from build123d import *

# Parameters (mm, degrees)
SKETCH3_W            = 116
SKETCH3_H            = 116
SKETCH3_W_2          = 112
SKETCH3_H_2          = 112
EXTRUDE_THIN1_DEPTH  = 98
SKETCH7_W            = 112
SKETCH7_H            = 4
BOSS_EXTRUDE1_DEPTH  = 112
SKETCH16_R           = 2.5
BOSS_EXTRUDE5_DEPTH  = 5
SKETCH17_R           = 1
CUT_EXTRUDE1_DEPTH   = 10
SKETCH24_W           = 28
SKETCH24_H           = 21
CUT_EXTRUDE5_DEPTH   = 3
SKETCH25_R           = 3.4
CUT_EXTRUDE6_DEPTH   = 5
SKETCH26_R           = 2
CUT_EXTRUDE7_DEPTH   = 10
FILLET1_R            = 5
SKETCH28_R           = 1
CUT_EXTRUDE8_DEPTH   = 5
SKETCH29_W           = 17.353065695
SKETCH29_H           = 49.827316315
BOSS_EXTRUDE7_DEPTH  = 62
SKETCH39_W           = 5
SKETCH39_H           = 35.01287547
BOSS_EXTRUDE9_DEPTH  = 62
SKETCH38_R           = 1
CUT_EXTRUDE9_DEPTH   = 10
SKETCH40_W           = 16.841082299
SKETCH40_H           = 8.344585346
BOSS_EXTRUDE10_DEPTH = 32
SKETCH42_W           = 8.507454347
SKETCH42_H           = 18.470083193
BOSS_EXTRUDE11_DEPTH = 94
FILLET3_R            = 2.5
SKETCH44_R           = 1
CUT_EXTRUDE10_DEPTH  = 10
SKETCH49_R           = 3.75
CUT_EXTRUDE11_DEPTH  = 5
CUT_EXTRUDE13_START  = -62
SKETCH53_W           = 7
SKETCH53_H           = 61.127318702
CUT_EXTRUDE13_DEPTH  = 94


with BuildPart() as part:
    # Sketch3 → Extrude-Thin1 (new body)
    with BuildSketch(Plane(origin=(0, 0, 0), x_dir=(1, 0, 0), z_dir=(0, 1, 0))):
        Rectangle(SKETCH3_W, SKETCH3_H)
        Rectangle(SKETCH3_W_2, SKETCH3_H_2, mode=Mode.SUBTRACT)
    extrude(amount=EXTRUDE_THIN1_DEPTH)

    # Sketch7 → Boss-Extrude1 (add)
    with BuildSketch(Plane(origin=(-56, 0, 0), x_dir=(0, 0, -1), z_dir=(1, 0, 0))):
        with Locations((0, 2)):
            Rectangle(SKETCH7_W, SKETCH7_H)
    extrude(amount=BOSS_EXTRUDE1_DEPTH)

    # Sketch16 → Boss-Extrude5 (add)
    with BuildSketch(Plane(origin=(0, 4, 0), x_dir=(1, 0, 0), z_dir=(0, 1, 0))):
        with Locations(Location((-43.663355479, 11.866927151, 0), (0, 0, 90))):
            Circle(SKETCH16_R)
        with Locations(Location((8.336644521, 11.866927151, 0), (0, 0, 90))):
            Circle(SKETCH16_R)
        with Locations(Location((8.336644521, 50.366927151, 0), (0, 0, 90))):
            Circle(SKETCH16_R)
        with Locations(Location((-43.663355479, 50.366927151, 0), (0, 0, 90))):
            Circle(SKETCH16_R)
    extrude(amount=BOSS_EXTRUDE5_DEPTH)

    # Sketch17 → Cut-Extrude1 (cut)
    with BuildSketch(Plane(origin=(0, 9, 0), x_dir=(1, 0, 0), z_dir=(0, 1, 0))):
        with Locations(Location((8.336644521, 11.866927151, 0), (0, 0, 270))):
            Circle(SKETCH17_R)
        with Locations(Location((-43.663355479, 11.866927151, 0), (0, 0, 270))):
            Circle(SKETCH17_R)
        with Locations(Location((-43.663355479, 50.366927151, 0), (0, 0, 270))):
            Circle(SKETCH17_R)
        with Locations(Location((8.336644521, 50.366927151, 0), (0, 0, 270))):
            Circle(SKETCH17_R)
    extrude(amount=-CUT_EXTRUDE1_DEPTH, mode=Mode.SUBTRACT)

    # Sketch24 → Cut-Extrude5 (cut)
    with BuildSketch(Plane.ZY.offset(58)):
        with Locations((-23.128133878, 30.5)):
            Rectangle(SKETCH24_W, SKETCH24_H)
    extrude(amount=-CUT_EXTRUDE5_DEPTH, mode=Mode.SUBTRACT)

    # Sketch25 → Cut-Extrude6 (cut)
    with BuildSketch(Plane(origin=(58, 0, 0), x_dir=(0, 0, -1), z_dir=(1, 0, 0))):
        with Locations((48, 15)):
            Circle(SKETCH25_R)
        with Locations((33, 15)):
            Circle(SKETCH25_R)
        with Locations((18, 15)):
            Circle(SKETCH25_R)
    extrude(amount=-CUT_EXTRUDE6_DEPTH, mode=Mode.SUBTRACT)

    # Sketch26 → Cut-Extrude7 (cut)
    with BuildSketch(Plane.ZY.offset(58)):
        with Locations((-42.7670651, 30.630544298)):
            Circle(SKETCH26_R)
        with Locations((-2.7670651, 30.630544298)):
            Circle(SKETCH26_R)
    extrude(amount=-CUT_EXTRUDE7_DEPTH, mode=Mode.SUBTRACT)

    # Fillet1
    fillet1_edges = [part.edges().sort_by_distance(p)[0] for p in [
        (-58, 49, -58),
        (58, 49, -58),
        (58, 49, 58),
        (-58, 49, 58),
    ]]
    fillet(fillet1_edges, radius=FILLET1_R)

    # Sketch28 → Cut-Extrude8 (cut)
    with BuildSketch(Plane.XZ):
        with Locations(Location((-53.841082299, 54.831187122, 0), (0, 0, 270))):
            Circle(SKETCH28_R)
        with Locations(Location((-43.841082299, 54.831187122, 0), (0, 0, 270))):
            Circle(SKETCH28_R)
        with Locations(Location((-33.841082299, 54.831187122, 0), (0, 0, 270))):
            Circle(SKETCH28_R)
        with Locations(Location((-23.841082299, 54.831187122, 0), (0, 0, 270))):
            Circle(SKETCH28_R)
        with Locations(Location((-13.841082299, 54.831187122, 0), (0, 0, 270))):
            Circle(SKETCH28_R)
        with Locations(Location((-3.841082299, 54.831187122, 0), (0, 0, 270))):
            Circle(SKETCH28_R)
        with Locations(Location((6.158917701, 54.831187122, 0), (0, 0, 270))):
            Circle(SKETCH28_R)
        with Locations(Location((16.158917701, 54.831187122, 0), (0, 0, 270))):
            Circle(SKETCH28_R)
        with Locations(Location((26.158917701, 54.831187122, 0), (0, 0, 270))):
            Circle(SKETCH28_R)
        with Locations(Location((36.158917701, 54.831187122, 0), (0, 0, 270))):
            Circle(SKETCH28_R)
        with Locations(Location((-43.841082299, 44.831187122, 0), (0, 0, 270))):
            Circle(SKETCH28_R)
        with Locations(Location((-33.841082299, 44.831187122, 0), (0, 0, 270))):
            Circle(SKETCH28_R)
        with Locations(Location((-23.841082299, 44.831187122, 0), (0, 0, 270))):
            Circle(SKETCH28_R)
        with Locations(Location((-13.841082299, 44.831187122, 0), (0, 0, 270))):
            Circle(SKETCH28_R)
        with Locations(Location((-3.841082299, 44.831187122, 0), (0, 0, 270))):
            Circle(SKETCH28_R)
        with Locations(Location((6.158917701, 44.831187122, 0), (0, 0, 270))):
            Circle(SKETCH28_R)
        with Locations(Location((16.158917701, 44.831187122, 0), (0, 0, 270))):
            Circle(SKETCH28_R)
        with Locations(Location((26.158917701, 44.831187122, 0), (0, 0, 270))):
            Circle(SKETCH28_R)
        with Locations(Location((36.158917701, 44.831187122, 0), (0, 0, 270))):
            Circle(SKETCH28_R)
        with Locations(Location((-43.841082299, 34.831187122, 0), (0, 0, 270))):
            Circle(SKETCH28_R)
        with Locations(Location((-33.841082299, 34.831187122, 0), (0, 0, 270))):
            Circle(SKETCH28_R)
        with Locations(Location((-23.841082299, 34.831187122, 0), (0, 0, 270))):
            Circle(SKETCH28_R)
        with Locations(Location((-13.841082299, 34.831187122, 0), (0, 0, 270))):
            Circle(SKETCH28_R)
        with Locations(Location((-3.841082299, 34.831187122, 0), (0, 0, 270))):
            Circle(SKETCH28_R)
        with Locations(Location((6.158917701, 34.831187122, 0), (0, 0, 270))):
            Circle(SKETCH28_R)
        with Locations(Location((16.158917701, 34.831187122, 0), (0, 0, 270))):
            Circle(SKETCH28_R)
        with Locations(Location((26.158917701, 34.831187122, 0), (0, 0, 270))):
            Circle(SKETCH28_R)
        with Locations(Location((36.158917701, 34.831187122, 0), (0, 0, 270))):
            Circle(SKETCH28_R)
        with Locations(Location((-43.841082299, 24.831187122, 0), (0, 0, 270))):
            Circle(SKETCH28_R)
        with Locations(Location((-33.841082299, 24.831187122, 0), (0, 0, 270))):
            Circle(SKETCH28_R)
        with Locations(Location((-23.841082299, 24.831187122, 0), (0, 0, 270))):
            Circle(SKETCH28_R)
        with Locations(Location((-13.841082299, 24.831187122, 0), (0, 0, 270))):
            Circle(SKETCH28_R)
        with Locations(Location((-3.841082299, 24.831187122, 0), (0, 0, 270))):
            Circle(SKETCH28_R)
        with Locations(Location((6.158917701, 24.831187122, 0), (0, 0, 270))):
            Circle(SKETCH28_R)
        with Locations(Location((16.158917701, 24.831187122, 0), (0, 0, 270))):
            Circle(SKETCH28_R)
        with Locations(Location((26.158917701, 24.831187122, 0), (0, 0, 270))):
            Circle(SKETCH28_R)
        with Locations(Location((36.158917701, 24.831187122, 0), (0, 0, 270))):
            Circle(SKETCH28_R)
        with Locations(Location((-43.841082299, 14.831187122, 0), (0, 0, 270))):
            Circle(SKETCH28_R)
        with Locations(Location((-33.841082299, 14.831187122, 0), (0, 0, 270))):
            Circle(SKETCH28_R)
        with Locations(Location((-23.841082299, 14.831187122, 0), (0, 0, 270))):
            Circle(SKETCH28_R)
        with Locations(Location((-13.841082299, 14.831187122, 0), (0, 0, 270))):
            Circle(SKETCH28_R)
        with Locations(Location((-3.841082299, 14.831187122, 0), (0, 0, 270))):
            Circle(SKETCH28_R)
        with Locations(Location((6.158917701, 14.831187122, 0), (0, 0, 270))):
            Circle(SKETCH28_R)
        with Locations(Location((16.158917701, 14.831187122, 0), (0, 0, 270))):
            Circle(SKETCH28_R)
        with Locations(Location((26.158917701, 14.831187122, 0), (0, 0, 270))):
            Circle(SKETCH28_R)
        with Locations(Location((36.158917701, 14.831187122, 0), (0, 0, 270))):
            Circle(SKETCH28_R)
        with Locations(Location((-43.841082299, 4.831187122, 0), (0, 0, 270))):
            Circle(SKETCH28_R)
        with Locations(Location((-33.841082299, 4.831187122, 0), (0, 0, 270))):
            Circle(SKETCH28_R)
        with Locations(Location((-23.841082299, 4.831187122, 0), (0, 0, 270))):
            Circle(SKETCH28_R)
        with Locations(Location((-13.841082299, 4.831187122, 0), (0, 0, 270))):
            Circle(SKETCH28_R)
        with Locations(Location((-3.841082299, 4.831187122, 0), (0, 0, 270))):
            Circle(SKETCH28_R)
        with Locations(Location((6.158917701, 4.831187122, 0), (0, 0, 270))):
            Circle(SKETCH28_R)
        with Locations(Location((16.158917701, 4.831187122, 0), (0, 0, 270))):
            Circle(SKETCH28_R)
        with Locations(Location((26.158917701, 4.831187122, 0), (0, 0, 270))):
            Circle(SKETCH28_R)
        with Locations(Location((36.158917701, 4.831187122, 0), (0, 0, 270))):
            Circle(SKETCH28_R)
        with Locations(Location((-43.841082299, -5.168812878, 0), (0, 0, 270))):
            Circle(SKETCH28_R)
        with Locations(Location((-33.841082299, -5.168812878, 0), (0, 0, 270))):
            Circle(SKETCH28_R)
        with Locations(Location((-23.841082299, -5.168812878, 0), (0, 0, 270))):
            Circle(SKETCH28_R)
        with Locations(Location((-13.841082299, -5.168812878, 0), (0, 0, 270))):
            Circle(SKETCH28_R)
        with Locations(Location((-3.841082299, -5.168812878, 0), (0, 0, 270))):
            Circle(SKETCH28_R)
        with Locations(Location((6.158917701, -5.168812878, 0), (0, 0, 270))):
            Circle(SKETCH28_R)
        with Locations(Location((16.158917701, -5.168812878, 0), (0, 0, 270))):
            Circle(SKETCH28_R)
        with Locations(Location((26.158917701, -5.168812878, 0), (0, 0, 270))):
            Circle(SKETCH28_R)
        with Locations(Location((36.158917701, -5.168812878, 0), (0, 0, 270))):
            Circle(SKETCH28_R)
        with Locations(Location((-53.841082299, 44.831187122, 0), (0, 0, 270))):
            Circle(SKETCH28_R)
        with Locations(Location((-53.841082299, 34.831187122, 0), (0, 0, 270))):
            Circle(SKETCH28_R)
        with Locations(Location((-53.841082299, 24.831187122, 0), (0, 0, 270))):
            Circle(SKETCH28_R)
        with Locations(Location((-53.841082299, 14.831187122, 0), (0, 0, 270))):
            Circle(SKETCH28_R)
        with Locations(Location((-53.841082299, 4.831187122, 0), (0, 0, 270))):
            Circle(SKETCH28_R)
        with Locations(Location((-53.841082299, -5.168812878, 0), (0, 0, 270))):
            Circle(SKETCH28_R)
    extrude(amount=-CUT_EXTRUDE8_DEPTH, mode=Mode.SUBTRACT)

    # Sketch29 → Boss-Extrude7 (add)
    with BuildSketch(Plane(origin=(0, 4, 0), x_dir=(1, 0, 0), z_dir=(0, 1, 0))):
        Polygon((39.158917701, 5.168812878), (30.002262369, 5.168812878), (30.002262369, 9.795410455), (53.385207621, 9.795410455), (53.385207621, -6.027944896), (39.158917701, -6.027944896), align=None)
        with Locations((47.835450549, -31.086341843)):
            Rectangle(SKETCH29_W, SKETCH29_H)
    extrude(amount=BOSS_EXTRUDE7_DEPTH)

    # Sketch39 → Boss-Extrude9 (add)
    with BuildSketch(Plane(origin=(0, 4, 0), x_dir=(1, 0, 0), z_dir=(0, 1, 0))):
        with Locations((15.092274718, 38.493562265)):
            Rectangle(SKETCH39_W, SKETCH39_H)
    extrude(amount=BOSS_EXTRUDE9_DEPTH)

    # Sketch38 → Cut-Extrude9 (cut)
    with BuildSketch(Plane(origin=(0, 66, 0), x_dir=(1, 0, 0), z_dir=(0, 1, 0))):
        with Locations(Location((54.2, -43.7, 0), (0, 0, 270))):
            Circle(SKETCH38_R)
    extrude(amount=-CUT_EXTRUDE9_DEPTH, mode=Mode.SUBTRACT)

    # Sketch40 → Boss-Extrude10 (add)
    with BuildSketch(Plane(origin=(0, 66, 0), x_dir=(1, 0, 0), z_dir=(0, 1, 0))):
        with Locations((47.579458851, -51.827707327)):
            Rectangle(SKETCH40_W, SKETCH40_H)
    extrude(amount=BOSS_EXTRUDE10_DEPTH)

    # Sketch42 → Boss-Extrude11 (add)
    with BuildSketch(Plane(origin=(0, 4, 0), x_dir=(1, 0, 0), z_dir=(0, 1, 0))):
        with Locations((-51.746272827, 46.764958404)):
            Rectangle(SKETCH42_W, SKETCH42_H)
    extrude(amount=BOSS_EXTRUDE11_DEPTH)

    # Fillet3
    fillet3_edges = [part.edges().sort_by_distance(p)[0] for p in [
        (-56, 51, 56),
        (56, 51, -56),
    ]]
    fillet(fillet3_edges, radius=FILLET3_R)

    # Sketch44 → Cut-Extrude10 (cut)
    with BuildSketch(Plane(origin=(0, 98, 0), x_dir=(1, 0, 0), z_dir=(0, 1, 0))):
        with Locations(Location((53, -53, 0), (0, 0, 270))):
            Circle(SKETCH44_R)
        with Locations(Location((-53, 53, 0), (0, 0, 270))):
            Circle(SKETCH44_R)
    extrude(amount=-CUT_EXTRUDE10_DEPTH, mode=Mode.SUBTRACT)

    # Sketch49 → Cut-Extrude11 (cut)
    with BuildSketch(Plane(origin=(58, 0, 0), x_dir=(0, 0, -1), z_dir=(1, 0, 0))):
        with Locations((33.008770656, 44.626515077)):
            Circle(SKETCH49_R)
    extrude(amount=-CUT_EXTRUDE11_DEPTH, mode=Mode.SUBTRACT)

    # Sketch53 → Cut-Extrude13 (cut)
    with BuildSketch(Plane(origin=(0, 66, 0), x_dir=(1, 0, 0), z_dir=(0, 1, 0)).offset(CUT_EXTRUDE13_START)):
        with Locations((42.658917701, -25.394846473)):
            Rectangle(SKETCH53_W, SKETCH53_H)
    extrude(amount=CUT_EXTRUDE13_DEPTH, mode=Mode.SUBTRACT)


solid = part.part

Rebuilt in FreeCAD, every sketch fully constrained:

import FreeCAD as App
import Part
import Sketcher
from FreeCAD import Vector


def edges_at(feature, points):
    """Names of the edges that pass closest to the given points."""
    edges = feature.Shape.Edges
    near = lambda p: min(range(len(edges)), key=lambda i: edges[i].distToShape(Part.Vertex(*p))[0])
    return sorted({f"Edge{near(p) + 1}" for p in points})


def add_polygon(sketch, points):
    """Adds a closed chain of lines whose ends are joined by coincident constraints."""
    first, n = sketch.GeometryCount, len(points)
    for a, b in zip(points, points[1:] + points[:1]):
        sketch.addGeometry(Part.LineSegment(App.Vector(*a, 0), App.Vector(*b, 0)), False)
    for i in range(n):
        sketch.addConstraint(Sketcher.Constraint("Coincident", first + i, 2, first + (i + 1) % n, 1))

doc = App.newDocument("Part")
body = doc.addObject("PartDesign::Body", "Body")

sketch1 = body.newObject("Sketcher::SketchObject", "Sketch")
sketch1.AttachmentSupport = (doc.getObject("XZ_Plane"), [""])
sketch1.MapMode = "FlatFace"
add_polygon(sketch1, [(-58, -58), (-58, 58), (58, 58), (58, -58)])
add_polygon(sketch1, [(56, 56), (-56, 56), (-56, -56), (56, -56)])
sketch1.addConstraint(Sketcher.Constraint("Vertical", 0))
sketch1.addConstraint(Sketcher.Constraint("Horizontal", 1))
sketch1.addConstraint(Sketcher.Constraint("Vertical", 2))
sketch1.addConstraint(Sketcher.Constraint("Horizontal", 3))
sketch1.addConstraint(Sketcher.Constraint("Horizontal", 4))
sketch1.addConstraint(Sketcher.Constraint("Vertical", 5))
sketch1.addConstraint(Sketcher.Constraint("Horizontal", 6))
sketch1.addConstraint(Sketcher.Constraint("Vertical", 7))
sketch1.addConstraint(Sketcher.Constraint("Symmetric", 0, 2, 2, 2, -1, 1))
sketch1.addConstraint(Sketcher.Constraint("Symmetric", 4, 2, 6, 2, -1, 1))
sketch1.addConstraint(Sketcher.Constraint("Equal", 3, 0))
sketch1.addConstraint(Sketcher.Constraint("Equal", 6, 5))
sketch1.addConstraint(Sketcher.Constraint("DistanceX", 1, 1, 1, 2, 116.0))
sketch1.addConstraint(Sketcher.Constraint("DistanceX", 4, 2, 4, 1, 112.0))
pad1 = body.newObject("PartDesign::Pad", "Pad")
pad1.Profile = sketch1
pad1.Length = 98
pad1.Reversed = True

sketch2 = body.newObject("Sketcher::SketchObject", "Sketch001")
sketch2.AttachmentSupport = (doc.getObject("YZ_Plane"), [""])
sketch2.MapMode = "FlatFace"
sketch2.AttachmentOffset = App.Placement(Vector(0, 0, -56), App.Rotation())
add_polygon(sketch2, [(4, 56), (0, 56), (0, -56), (4, -56)])
sketch2.addConstraint(Sketcher.Constraint("Horizontal", 0))
sketch2.addConstraint(Sketcher.Constraint("Vertical", 1))
sketch2.addConstraint(Sketcher.Constraint("Horizontal", 2))
sketch2.addConstraint(Sketcher.Constraint("Vertical", 3))
sketch2.addConstraint(Sketcher.Constraint("Symmetric", 0, 2, 1, 2, -1, 1))
sketch2.addConstraint(Sketcher.Constraint("DistanceX", 0, 2, 0, 1, 4.0))
sketch2.addConstraint(Sketcher.Constraint("DistanceY", 1, 2, 1, 1, 112.0))
pad2 = body.newObject("PartDesign::Pad", "Pad001")
pad2.Profile = sketch2
pad2.Length = 112

sketch3 = body.newObject("Sketcher::SketchObject", "Sketch002")
sketch3.AttachmentSupport = (doc.getObject("XZ_Plane"), [""])
sketch3.MapMode = "FlatFace"
sketch3.AttachmentOffset = App.Placement(Vector(0, 0, -4), App.Rotation())
sketch3.addGeometry(Part.Circle(Vector(-43.7, -11.9, 0), Vector(0, 0, 1), 2.5), False)
sketch3.addGeometry(Part.Circle(Vector(8.3, -11.9, 0), Vector(0, 0, 1), 2.5), False)
sketch3.addGeometry(Part.Circle(Vector(8.3, -50.4, 0), Vector(0, 0, 1), 2.5), False)
sketch3.addGeometry(Part.Circle(Vector(-43.7, -50.4, 0), Vector(0, 0, 1), 2.5), False)
sketch3.addConstraint(Sketcher.Constraint("Equal", 0, 1))
sketch3.addConstraint(Sketcher.Constraint("Equal", 1, 2))
sketch3.addConstraint(Sketcher.Constraint("Equal", 2, 3))
sketch3.addConstraint(Sketcher.Constraint("Horizontal", 0, 3, 1, 3))
sketch3.addConstraint(Sketcher.Constraint("Horizontal", 2, 3, 3, 3))
sketch3.addConstraint(Sketcher.Constraint("Vertical", 1, 3, 2, 3))
sketch3.addConstraint(Sketcher.Constraint("Vertical", 0, 3, 3, 3))
sketch3.addConstraint(Sketcher.Constraint("Diameter", 0, 5.0))
sketch3.addConstraint(Sketcher.Constraint("DistanceX", 0, 3, 1, 3, 52.0))
sketch3.addConstraint(Sketcher.Constraint("DistanceY", 2, 3, 1, 3, 38.5))
sketch3.addConstraint(Sketcher.Constraint("DistanceX", 0, 3, -1, 1, 43.663355))
sketch3.addConstraint(Sketcher.Constraint("DistanceY", 0, 3, -1, 1, 11.866927))
pad3 = body.newObject("PartDesign::Pad", "Pad002")
pad3.Profile = sketch3
pad3.Length = 5
pad3.Reversed = True

sketch4 = body.newObject("Sketcher::SketchObject", "Sketch003")
sketch4.AttachmentSupport = (doc.getObject("XZ_Plane"), [""])
sketch4.MapMode = "FlatFace"
sketch4.AttachmentOffset = App.Placement(Vector(0, 0, -9), App.Rotation())
sketch4.addGeometry(Part.Circle(Vector(8.3, -11.9, 0), Vector(0, 0, 1), 1), False)
sketch4.addGeometry(Part.Circle(Vector(-43.7, -11.9, 0), Vector(0, 0, 1), 1), False)
sketch4.addGeometry(Part.Circle(Vector(-43.7, -50.4, 0), Vector(0, 0, 1), 1), False)
sketch4.addGeometry(Part.Circle(Vector(8.3, -50.4, 0), Vector(0, 0, 1), 1), False)
sketch4.addConstraint(Sketcher.Constraint("Equal", 0, 1))
sketch4.addConstraint(Sketcher.Constraint("Equal", 1, 2))
sketch4.addConstraint(Sketcher.Constraint("Equal", 2, 3))
sketch4.addConstraint(Sketcher.Constraint("Horizontal", 0, 3, 1, 3))
sketch4.addConstraint(Sketcher.Constraint("Horizontal", 2, 3, 3, 3))
sketch4.addConstraint(Sketcher.Constraint("Vertical", 1, 3, 2, 3))
sketch4.addConstraint(Sketcher.Constraint("Vertical", 0, 3, 3, 3))
sketch4.addConstraint(Sketcher.Constraint("Diameter", 0, 2.0))
sketch4.addConstraint(Sketcher.Constraint("DistanceX", 1, 3, 0, 3, 52.0))
sketch4.addConstraint(Sketcher.Constraint("DistanceY", 2, 3, 1, 3, 38.5))
sketch4.addConstraint(Sketcher.Constraint("DistanceX", -1, 1, 0, 3, 8.336645))
sketch4.addConstraint(Sketcher.Constraint("DistanceY", 0, 3, -1, 1, 11.866927))
pocket1 = body.newObject("PartDesign::Pocket", "Pocket")
pocket1.Profile = sketch4
pocket1.Length = 10
pocket1.Reversed = True

sketch5 = body.newObject("Sketcher::SketchObject", "Sketch004")
sketch5.AttachmentSupport = (doc.getObject("YZ_Plane"), [""])
sketch5.MapMode = "FlatFace"
sketch5.AttachmentOffset = App.Placement(Vector(0, 0, -58), App.Rotation())
add_polygon(sketch5, [(41, -37), (20, -37), (20, -9), (41, -9)])
sketch5.addConstraint(Sketcher.Constraint("Horizontal", 0))
sketch5.addConstraint(Sketcher.Constraint("Vertical", 1))
sketch5.addConstraint(Sketcher.Constraint("Horizontal", 2))
sketch5.addConstraint(Sketcher.Constraint("Vertical", 3))
sketch5.addConstraint(Sketcher.Constraint("DistanceX", 0, 2, 0, 1, 21.0))
sketch5.addConstraint(Sketcher.Constraint("DistanceY", 1, 1, 1, 2, 28.0))
sketch5.addConstraint(Sketcher.Constraint("DistanceX", -1, 1, 0, 2, 20.0))
sketch5.addConstraint(Sketcher.Constraint("DistanceY", 0, 2, -1, 1, 37.128134))
pocket2 = body.newObject("PartDesign::Pocket", "Pocket001")
pocket2.Profile = sketch5
pocket2.Length = 3
pocket2.Reversed = True

sketch6 = body.newObject("Sketcher::SketchObject", "Sketch005")
sketch6.AttachmentSupport = (doc.getObject("YZ_Plane"), [""])
sketch6.MapMode = "FlatFace"
sketch6.AttachmentOffset = App.Placement(Vector(0, 0, 58), App.Rotation())
sketch6.addGeometry(Part.Circle(Vector(15, -48, 0), Vector(0, 0, 1), 3.4), False)
sketch6.addGeometry(Part.Circle(Vector(15, -33, 0), Vector(0, 0, 1), 3.4), False)
sketch6.addGeometry(Part.Circle(Vector(15, -18, 0), Vector(0, 0, 1), 3.4), False)
sketch6.addConstraint(Sketcher.Constraint("Equal", 0, 1))
sketch6.addConstraint(Sketcher.Constraint("Equal", 1, 2))
sketch6.addConstraint(Sketcher.Constraint("Vertical", 0, 3, 1, 3))
sketch6.addConstraint(Sketcher.Constraint("Vertical", 1, 3, 2, 3))
sketch6.addConstraint(Sketcher.Constraint("Diameter", 0, 6.8))
sketch6.addConstraint(Sketcher.Constraint("DistanceX", -1, 1, 0, 3, 15.0))
sketch6.addConstraint(Sketcher.Constraint("DistanceY", 0, 3, -1, 1, 48.0))
sketch6.addConstraint(Sketcher.Constraint("DistanceY", 1, 3, -1, 1, 33.0))
sketch6.addConstraint(Sketcher.Constraint("DistanceY", 2, 3, -1, 1, 18.0))
pocket3 = body.newObject("PartDesign::Pocket", "Pocket002")
pocket3.Profile = sketch6
pocket3.Length = 5

sketch7 = body.newObject("Sketcher::SketchObject", "Sketch006")
sketch7.AttachmentSupport = (doc.getObject("YZ_Plane"), [""])
sketch7.MapMode = "FlatFace"
sketch7.AttachmentOffset = App.Placement(Vector(0, 0, -58), App.Rotation())
sketch7.addGeometry(Part.Circle(Vector(30.6, -42.8, 0), Vector(0, 0, 1), 2), False)
sketch7.addGeometry(Part.Circle(Vector(30.6, -2.8, 0), Vector(0, 0, 1), 2), False)
sketch7.addConstraint(Sketcher.Constraint("Equal", 0, 1))
sketch7.addConstraint(Sketcher.Constraint("Vertical", 0, 3, 1, 3))
sketch7.addConstraint(Sketcher.Constraint("Diameter", 0, 4.0))
sketch7.addConstraint(Sketcher.Constraint("DistanceY", 0, 3, 1, 3, 40.0))
sketch7.addConstraint(Sketcher.Constraint("DistanceX", -1, 1, 0, 3, 30.630544))
sketch7.addConstraint(Sketcher.Constraint("DistanceY", 0, 3, -1, 1, 42.767065))
pocket4 = body.newObject("PartDesign::Pocket", "Pocket003")
pocket4.Profile = sketch7
pocket4.Length = 10
pocket4.Reversed = True
doc.recompute()

fillet = body.newObject("PartDesign::Fillet", "Fillet")
fillet.Base = (pocket4, edges_at(pocket4, [
    (-58, 49, -58),
    (58, 49, -58),
    (58, 49, 58),
    (-58, 49, 58),
]))
fillet.Radius = 5

sketch8 = body.newObject("Sketcher::SketchObject", "Sketch007")
sketch8.AttachmentSupport = (doc.getObject("XZ_Plane"), [""])
sketch8.MapMode = "FlatFace"
sketch8.addGeometry(Part.Circle(Vector(-53.8, 54.8, 0), Vector(0, 0, 1), 1), False)
sketch8.addGeometry(Part.Circle(Vector(-43.8, 54.8, 0), Vector(0, 0, 1), 1), False)
sketch8.addGeometry(Part.Circle(Vector(-33.8, 54.8, 0), Vector(0, 0, 1), 1), False)
sketch8.addGeometry(Part.Circle(Vector(-23.8, 54.8, 0), Vector(0, 0, 1), 1), False)
sketch8.addGeometry(Part.Circle(Vector(-13.8, 54.8, 0), Vector(0, 0, 1), 1), False)
sketch8.addGeometry(Part.Circle(Vector(-3.8, 54.8, 0), Vector(0, 0, 1), 1), False)
sketch8.addGeometry(Part.Circle(Vector(6.2, 54.8, 0), Vector(0, 0, 1), 1), False)
sketch8.addGeometry(Part.Circle(Vector(16.2, 54.8, 0), Vector(0, 0, 1), 1), False)
sketch8.addGeometry(Part.Circle(Vector(26.2, 54.8, 0), Vector(0, 0, 1), 1), False)
sketch8.addGeometry(Part.Circle(Vector(36.2, 54.8, 0), Vector(0, 0, 1), 1), False)
sketch8.addGeometry(Part.Circle(Vector(-43.8, 44.8, 0), Vector(0, 0, 1), 1), False)
sketch8.addGeometry(Part.Circle(Vector(-33.8, 44.8, 0), Vector(0, 0, 1), 1), False)
sketch8.addGeometry(Part.Circle(Vector(-23.8, 44.8, 0), Vector(0, 0, 1), 1), False)
sketch8.addGeometry(Part.Circle(Vector(-13.8, 44.8, 0), Vector(0, 0, 1), 1), False)
sketch8.addGeometry(Part.Circle(Vector(-3.8, 44.8, 0), Vector(0, 0, 1), 1), False)
sketch8.addGeometry(Part.Circle(Vector(6.2, 44.8, 0), Vector(0, 0, 1), 1), False)
sketch8.addGeometry(Part.Circle(Vector(16.2, 44.8, 0), Vector(0, 0, 1), 1), False)
sketch8.addGeometry(Part.Circle(Vector(26.2, 44.8, 0), Vector(0, 0, 1), 1), False)
sketch8.addGeometry(Part.Circle(Vector(36.2, 44.8, 0), Vector(0, 0, 1), 1), False)
sketch8.addGeometry(Part.Circle(Vector(-43.8, 34.8, 0), Vector(0, 0, 1), 1), False)
sketch8.addGeometry(Part.Circle(Vector(-33.8, 34.8, 0), Vector(0, 0, 1), 1), False)
sketch8.addGeometry(Part.Circle(Vector(-23.8, 34.8, 0), Vector(0, 0, 1), 1), False)
sketch8.addGeometry(Part.Circle(Vector(-13.8, 34.8, 0), Vector(0, 0, 1), 1), False)
sketch8.addGeometry(Part.Circle(Vector(-3.8, 34.8, 0), Vector(0, 0, 1), 1), False)
sketch8.addGeometry(Part.Circle(Vector(6.2, 34.8, 0), Vector(0, 0, 1), 1), False)
sketch8.addGeometry(Part.Circle(Vector(16.2, 34.8, 0), Vector(0, 0, 1), 1), False)
sketch8.addGeometry(Part.Circle(Vector(26.2, 34.8, 0), Vector(0, 0, 1), 1), False)
sketch8.addGeometry(Part.Circle(Vector(36.2, 34.8, 0), Vector(0, 0, 1), 1), False)
sketch8.addGeometry(Part.Circle(Vector(-43.8, 24.8, 0), Vector(0, 0, 1), 1), False)
sketch8.addGeometry(Part.Circle(Vector(-33.8, 24.8, 0), Vector(0, 0, 1), 1), False)
sketch8.addGeometry(Part.Circle(Vector(-23.8, 24.8, 0), Vector(0, 0, 1), 1), False)
sketch8.addGeometry(Part.Circle(Vector(-13.8, 24.8, 0), Vector(0, 0, 1), 1), False)
sketch8.addGeometry(Part.Circle(Vector(-3.8, 24.8, 0), Vector(0, 0, 1), 1), False)
sketch8.addGeometry(Part.Circle(Vector(6.2, 24.8, 0), Vector(0, 0, 1), 1), False)
sketch8.addGeometry(Part.Circle(Vector(16.2, 24.8, 0), Vector(0, 0, 1), 1), False)
sketch8.addGeometry(Part.Circle(Vector(26.2, 24.8, 0), Vector(0, 0, 1), 1), False)
sketch8.addGeometry(Part.Circle(Vector(36.2, 24.8, 0), Vector(0, 0, 1), 1), False)
sketch8.addGeometry(Part.Circle(Vector(-43.8, 14.8, 0), Vector(0, 0, 1), 1), False)
sketch8.addGeometry(Part.Circle(Vector(-33.8, 14.8, 0), Vector(0, 0, 1), 1), False)
sketch8.addGeometry(Part.Circle(Vector(-23.8, 14.8, 0), Vector(0, 0, 1), 1), False)
sketch8.addGeometry(Part.Circle(Vector(-13.8, 14.8, 0), Vector(0, 0, 1), 1), False)
sketch8.addGeometry(Part.Circle(Vector(-3.8, 14.8, 0), Vector(0, 0, 1), 1), False)
sketch8.addGeometry(Part.Circle(Vector(6.2, 14.8, 0), Vector(0, 0, 1), 1), False)
sketch8.addGeometry(Part.Circle(Vector(16.2, 14.8, 0), Vector(0, 0, 1), 1), False)
sketch8.addGeometry(Part.Circle(Vector(26.2, 14.8, 0), Vector(0, 0, 1), 1), False)
sketch8.addGeometry(Part.Circle(Vector(36.2, 14.8, 0), Vector(0, 0, 1), 1), False)
sketch8.addGeometry(Part.Circle(Vector(-43.8, 4.8, 0), Vector(0, 0, 1), 1), False)
sketch8.addGeometry(Part.Circle(Vector(-33.8, 4.8, 0), Vector(0, 0, 1), 1), False)
sketch8.addGeometry(Part.Circle(Vector(-23.8, 4.8, 0), Vector(0, 0, 1), 1), False)
sketch8.addGeometry(Part.Circle(Vector(-13.8, 4.8, 0), Vector(0, 0, 1), 1), False)
sketch8.addGeometry(Part.Circle(Vector(-3.8, 4.8, 0), Vector(0, 0, 1), 1), False)
sketch8.addGeometry(Part.Circle(Vector(6.2, 4.8, 0), Vector(0, 0, 1), 1), False)
sketch8.addGeometry(Part.Circle(Vector(16.2, 4.8, 0), Vector(0, 0, 1), 1), False)
sketch8.addGeometry(Part.Circle(Vector(26.2, 4.8, 0), Vector(0, 0, 1), 1), False)
sketch8.addGeometry(Part.Circle(Vector(36.2, 4.8, 0), Vector(0, 0, 1), 1), False)
sketch8.addGeometry(Part.Circle(Vector(-43.8, -5.2, 0), Vector(0, 0, 1), 1), False)
sketch8.addGeometry(Part.Circle(Vector(-33.8, -5.2, 0), Vector(0, 0, 1), 1), False)
sketch8.addGeometry(Part.Circle(Vector(-23.8, -5.2, 0), Vector(0, 0, 1), 1), False)
sketch8.addGeometry(Part.Circle(Vector(-13.8, -5.2, 0), Vector(0, 0, 1), 1), False)
sketch8.addGeometry(Part.Circle(Vector(-3.8, -5.2, 0), Vector(0, 0, 1), 1), False)
sketch8.addGeometry(Part.Circle(Vector(6.2, -5.2, 0), Vector(0, 0, 1), 1), False)
sketch8.addGeometry(Part.Circle(Vector(16.2, -5.2, 0), Vector(0, 0, 1), 1), False)
sketch8.addGeometry(Part.Circle(Vector(26.2, -5.2, 0), Vector(0, 0, 1), 1), False)
sketch8.addGeometry(Part.Circle(Vector(36.2, -5.2, 0), Vector(0, 0, 1), 1), False)
sketch8.addGeometry(Part.Circle(Vector(-53.8, 44.8, 0), Vector(0, 0, 1), 1), False)
sketch8.addGeometry(Part.Circle(Vector(-53.8, 34.8, 0), Vector(0, 0, 1), 1), False)
sketch8.addGeometry(Part.Circle(Vector(-53.8, 24.8, 0), Vector(0, 0, 1), 1), False)
sketch8.addGeometry(Part.Circle(Vector(-53.8, 14.8, 0), Vector(0, 0, 1), 1), False)
sketch8.addGeometry(Part.Circle(Vector(-53.8, 4.8, 0), Vector(0, 0, 1), 1), False)
sketch8.addGeometry(Part.Circle(Vector(-53.8, -5.2, 0), Vector(0, 0, 1), 1), False)
sketch8.addConstraint(Sketcher.Constraint("Equal", 0, 1))
sketch8.addConstraint(Sketcher.Constraint("Equal", 1, 2))
sketch8.addConstraint(Sketcher.Constraint("Equal", 2, 3))
sketch8.addConstraint(Sketcher.Constraint("Equal", 3, 4))
sketch8.addConstraint(Sketcher.Constraint("Equal", 4, 5))
sketch8.addConstraint(Sketcher.Constraint("Equal", 5, 6))
sketch8.addConstraint(Sketcher.Constraint("Equal", 6, 7))
sketch8.addConstraint(Sketcher.Constraint("Equal", 7, 8))
sketch8.addConstraint(Sketcher.Constraint("Equal", 8, 9))
sketch8.addConstraint(Sketcher.Constraint("Equal", 9, 10))
sketch8.addConstraint(Sketcher.Constraint("Equal", 10, 11))
sketch8.addConstraint(Sketcher.Constraint("Equal", 11, 12))
sketch8.addConstraint(Sketcher.Constraint("Equal", 12, 13))
sketch8.addConstraint(Sketcher.Constraint("Equal", 13, 14))
sketch8.addConstraint(Sketcher.Constraint("Equal", 14, 15))
sketch8.addConstraint(Sketcher.Constraint("Equal", 15, 16))
sketch8.addConstraint(Sketcher.Constraint("Equal", 16, 17))
sketch8.addConstraint(Sketcher.Constraint("Equal", 17, 18))
sketch8.addConstraint(Sketcher.Constraint("Equal", 18, 19))
sketch8.addConstraint(Sketcher.Constraint("Equal", 19, 20))
sketch8.addConstraint(Sketcher.Constraint("Equal", 20, 21))
sketch8.addConstraint(Sketcher.Constraint("Equal", 21, 22))
sketch8.addConstraint(Sketcher.Constraint("Equal", 22, 23))
sketch8.addConstraint(Sketcher.Constraint("Equal", 23, 24))
sketch8.addConstraint(Sketcher.Constraint("Equal", 24, 25))
sketch8.addConstraint(Sketcher.Constraint("Equal", 25, 26))
sketch8.addConstraint(Sketcher.Constraint("Equal", 26, 27))
sketch8.addConstraint(Sketcher.Constraint("Equal", 27, 28))
sketch8.addConstraint(Sketcher.Constraint("Equal", 28, 29))
sketch8.addConstraint(Sketcher.Constraint("Equal", 29, 30))
sketch8.addConstraint(Sketcher.Constraint("Equal", 30, 31))
sketch8.addConstraint(Sketcher.Constraint("Equal", 31, 32))
sketch8.addConstraint(Sketcher.Constraint("Equal", 32, 33))
sketch8.addConstraint(Sketcher.Constraint("Equal", 33, 34))
sketch8.addConstraint(Sketcher.Constraint("Equal", 34, 35))
sketch8.addConstraint(Sketcher.Constraint("Equal", 35, 36))
sketch8.addConstraint(Sketcher.Constraint("Equal", 36, 37))
sketch8.addConstraint(Sketcher.Constraint("Equal", 37, 38))
sketch8.addConstraint(Sketcher.Constraint("Equal", 38, 39))
sketch8.addConstraint(Sketcher.Constraint("Equal", 39, 40))
sketch8.addConstraint(Sketcher.Constraint("Equal", 40, 41))
sketch8.addConstraint(Sketcher.Constraint("Equal", 41, 42))
sketch8.addConstraint(Sketcher.Constraint("Equal", 42, 43))
sketch8.addConstraint(Sketcher.Constraint("Equal", 43, 44))
sketch8.addConstraint(Sketcher.Constraint("Equal", 44, 45))
sketch8.addConstraint(Sketcher.Constraint("Equal", 45, 46))
sketch8.addConstraint(Sketcher.Constraint("Equal", 46, 47))
sketch8.addConstraint(Sketcher.Constraint("Equal", 47, 48))
sketch8.addConstraint(Sketcher.Constraint("Equal", 48, 49))
sketch8.addConstraint(Sketcher.Constraint("Equal", 49, 50))
sketch8.addConstraint(Sketcher.Constraint("Equal", 50, 51))
sketch8.addConstraint(Sketcher.Constraint("Equal", 51, 52))
sketch8.addConstraint(Sketcher.Constraint("Equal", 52, 53))
sketch8.addConstraint(Sketcher.Constraint("Equal", 53, 54))
sketch8.addConstraint(Sketcher.Constraint("Equal", 54, 55))
sketch8.addConstraint(Sketcher.Constraint("Equal", 55, 56))
sketch8.addConstraint(Sketcher.Constraint("Equal", 56, 57))
sketch8.addConstraint(Sketcher.Constraint("Equal", 57, 58))
sketch8.addConstraint(Sketcher.Constraint("Equal", 58, 59))
sketch8.addConstraint(Sketcher.Constraint("Equal", 59, 60))
sketch8.addConstraint(Sketcher.Constraint("Equal", 60, 61))
sketch8.addConstraint(Sketcher.Constraint("Equal", 61, 62))
sketch8.addConstraint(Sketcher.Constraint("Equal", 62, 63))
sketch8.addConstraint(Sketcher.Constraint("Equal", 63, 64))
sketch8.addConstraint(Sketcher.Constraint("Equal", 64, 65))
sketch8.addConstraint(Sketcher.Constraint("Equal", 65, 66))
sketch8.addConstraint(Sketcher.Constraint("Equal", 66, 67))
sketch8.addConstraint(Sketcher.Constraint("Equal", 67, 68))
sketch8.addConstraint(Sketcher.Constraint("Equal", 68, 69))
sketch8.addConstraint(Sketcher.Constraint("Horizontal", 0, 3, 1, 3))
sketch8.addConstraint(Sketcher.Constraint("Horizontal", 1, 3, 2, 3))
sketch8.addConstraint(Sketcher.Constraint("Horizontal", 2, 3, 3, 3))
sketch8.addConstraint(Sketcher.Constraint("Horizontal", 3, 3, 4, 3))
sketch8.addConstraint(Sketcher.Constraint("Horizontal", 4, 3, 5, 3))
sketch8.addConstraint(Sketcher.Constraint("Horizontal", 5, 3, 6, 3))
sketch8.addConstraint(Sketcher.Constraint("Horizontal", 6, 3, 7, 3))
sketch8.addConstraint(Sketcher.Constraint("Horizontal", 7, 3, 8, 3))
sketch8.addConstraint(Sketcher.Constraint("Horizontal", 8, 3, 9, 3))
sketch8.addConstraint(Sketcher.Constraint("Horizontal", 10, 3, 11, 3))
sketch8.addConstraint(Sketcher.Constraint("Horizontal", 11, 3, 12, 3))
sketch8.addConstraint(Sketcher.Constraint("Horizontal", 12, 3, 13, 3))
sketch8.addConstraint(Sketcher.Constraint("Horizontal", 13, 3, 14, 3))
sketch8.addConstraint(Sketcher.Constraint("Horizontal", 14, 3, 15, 3))
sketch8.addConstraint(Sketcher.Constraint("Horizontal", 15, 3, 16, 3))
sketch8.addConstraint(Sketcher.Constraint("Horizontal", 16, 3, 17, 3))
sketch8.addConstraint(Sketcher.Constraint("Horizontal", 17, 3, 18, 3))
sketch8.addConstraint(Sketcher.Constraint("Horizontal", 19, 3, 20, 3))
sketch8.addConstraint(Sketcher.Constraint("Horizontal", 20, 3, 21, 3))
sketch8.addConstraint(Sketcher.Constraint("Horizontal", 21, 3, 22, 3))
sketch8.addConstraint(Sketcher.Constraint("Horizontal", 22, 3, 23, 3))
sketch8.addConstraint(Sketcher.Constraint("Horizontal", 23, 3, 24, 3))
sketch8.addConstraint(Sketcher.Constraint("Horizontal", 24, 3, 25, 3))
sketch8.addConstraint(Sketcher.Constraint("Horizontal", 25, 3, 26, 3))
sketch8.addConstraint(Sketcher.Constraint("Horizontal", 26, 3, 27, 3))
sketch8.addConstraint(Sketcher.Constraint("Horizontal", 28, 3, 29, 3))
sketch8.addConstraint(Sketcher.Constraint("Horizontal", 29, 3, 30, 3))
sketch8.addConstraint(Sketcher.Constraint("Horizontal", 30, 3, 31, 3))
sketch8.addConstraint(Sketcher.Constraint("Horizontal", 31, 3, 32, 3))
sketch8.addConstraint(Sketcher.Constraint("Horizontal", 32, 3, 33, 3))
sketch8.addConstraint(Sketcher.Constraint("Horizontal", 33, 3, 34, 3))
sketch8.addConstraint(Sketcher.Constraint("Horizontal", 34, 3, 35, 3))
sketch8.addConstraint(Sketcher.Constraint("Horizontal", 35, 3, 36, 3))
sketch8.addConstraint(Sketcher.Constraint("Horizontal", 37, 3, 38, 3))
sketch8.addConstraint(Sketcher.Constraint("Horizontal", 38, 3, 39, 3))
sketch8.addConstraint(Sketcher.Constraint("Horizontal", 39, 3, 40, 3))
sketch8.addConstraint(Sketcher.Constraint("Horizontal", 40, 3, 41, 3))
sketch8.addConstraint(Sketcher.Constraint("Horizontal", 41, 3, 42, 3))
sketch8.addConstraint(Sketcher.Constraint("Horizontal", 42, 3, 43, 3))
sketch8.addConstraint(Sketcher.Constraint("Horizontal", 43, 3, 44, 3))
sketch8.addConstraint(Sketcher.Constraint("Horizontal", 44, 3, 45, 3))
sketch8.addConstraint(Sketcher.Constraint("Horizontal", 46, 3, 47, 3))
sketch8.addConstraint(Sketcher.Constraint("Horizontal", 47, 3, 48, 3))
sketch8.addConstraint(Sketcher.Constraint("Horizontal", 48, 3, 49, 3))
sketch8.addConstraint(Sketcher.Constraint("Horizontal", 49, 3, 50, 3))
sketch8.addConstraint(Sketcher.Constraint("Horizontal", 50, 3, 51, 3))
sketch8.addConstraint(Sketcher.Constraint("Horizontal", 51, 3, 52, 3))
sketch8.addConstraint(Sketcher.Constraint("Horizontal", 52, 3, 53, 3))
sketch8.addConstraint(Sketcher.Constraint("Horizontal", 53, 3, 54, 3))
sketch8.addConstraint(Sketcher.Constraint("Horizontal", 55, 3, 56, 3))
sketch8.addConstraint(Sketcher.Constraint("Horizontal", 56, 3, 57, 3))
sketch8.addConstraint(Sketcher.Constraint("Horizontal", 57, 3, 58, 3))
sketch8.addConstraint(Sketcher.Constraint("Horizontal", 58, 3, 59, 3))
sketch8.addConstraint(Sketcher.Constraint("Horizontal", 59, 3, 60, 3))
sketch8.addConstraint(Sketcher.Constraint("Horizontal", 60, 3, 61, 3))
sketch8.addConstraint(Sketcher.Constraint("Horizontal", 61, 3, 62, 3))
sketch8.addConstraint(Sketcher.Constraint("Horizontal", 62, 3, 63, 3))
sketch8.addConstraint(Sketcher.Constraint("Horizontal", 18, 3, 64, 3))
sketch8.addConstraint(Sketcher.Constraint("Horizontal", 27, 3, 65, 3))
sketch8.addConstraint(Sketcher.Constraint("Horizontal", 36, 3, 66, 3))
sketch8.addConstraint(Sketcher.Constraint("Horizontal", 45, 3, 67, 3))
sketch8.addConstraint(Sketcher.Constraint("Horizontal", 54, 3, 68, 3))
sketch8.addConstraint(Sketcher.Constraint("Horizontal", 63, 3, 69, 3))
sketch8.addConstraint(Sketcher.Constraint("Vertical", 1, 3, 10, 3))
sketch8.addConstraint(Sketcher.Constraint("Vertical", 2, 3, 11, 3))
sketch8.addConstraint(Sketcher.Constraint("Vertical", 3, 3, 12, 3))
sketch8.addConstraint(Sketcher.Constraint("Vertical", 4, 3, 13, 3))
sketch8.addConstraint(Sketcher.Constraint("Vertical", 5, 3, 14, 3))
sketch8.addConstraint(Sketcher.Constraint("Vertical", 6, 3, 15, 3))
sketch8.addConstraint(Sketcher.Constraint("Vertical", 7, 3, 16, 3))
sketch8.addConstraint(Sketcher.Constraint("Vertical", 8, 3, 17, 3))
sketch8.addConstraint(Sketcher.Constraint("Vertical", 9, 3, 18, 3))
sketch8.addConstraint(Sketcher.Constraint("Vertical", 10, 3, 19, 3))
sketch8.addConstraint(Sketcher.Constraint("Vertical", 11, 3, 20, 3))
sketch8.addConstraint(Sketcher.Constraint("Vertical", 12, 3, 21, 3))
sketch8.addConstraint(Sketcher.Constraint("Vertical", 13, 3, 22, 3))
sketch8.addConstraint(Sketcher.Constraint("Vertical", 14, 3, 23, 3))
sketch8.addConstraint(Sketcher.Constraint("Vertical", 15, 3, 24, 3))
sketch8.addConstraint(Sketcher.Constraint("Vertical", 16, 3, 25, 3))
sketch8.addConstraint(Sketcher.Constraint("Vertical", 17, 3, 26, 3))
sketch8.addConstraint(Sketcher.Constraint("Vertical", 18, 3, 27, 3))
sketch8.addConstraint(Sketcher.Constraint("Vertical", 19, 3, 28, 3))
sketch8.addConstraint(Sketcher.Constraint("Vertical", 20, 3, 29, 3))
sketch8.addConstraint(Sketcher.Constraint("Vertical", 21, 3, 30, 3))
sketch8.addConstraint(Sketcher.Constraint("Vertical", 22, 3, 31, 3))
sketch8.addConstraint(Sketcher.Constraint("Vertical", 23, 3, 32, 3))
sketch8.addConstraint(Sketcher.Constraint("Vertical", 24, 3, 33, 3))
sketch8.addConstraint(Sketcher.Constraint("Vertical", 25, 3, 34, 3))
sketch8.addConstraint(Sketcher.Constraint("Vertical", 26, 3, 35, 3))
sketch8.addConstraint(Sketcher.Constraint("Vertical", 27, 3, 36, 3))
sketch8.addConstraint(Sketcher.Constraint("Vertical", 28, 3, 37, 3))
sketch8.addConstraint(Sketcher.Constraint("Vertical", 29, 3, 38, 3))
sketch8.addConstraint(Sketcher.Constraint("Vertical", 30, 3, 39, 3))
sketch8.addConstraint(Sketcher.Constraint("Vertical", 31, 3, 40, 3))
sketch8.addConstraint(Sketcher.Constraint("Vertical", 32, 3, 41, 3))
sketch8.addConstraint(Sketcher.Constraint("Vertical", 33, 3, 42, 3))
sketch8.addConstraint(Sketcher.Constraint("Vertical", 34, 3, 43, 3))
sketch8.addConstraint(Sketcher.Constraint("Vertical", 35, 3, 44, 3))
sketch8.addConstraint(Sketcher.Constraint("Vertical", 36, 3, 45, 3))
sketch8.addConstraint(Sketcher.Constraint("Vertical", 37, 3, 46, 3))
sketch8.addConstraint(Sketcher.Constraint("Vertical", 38, 3, 47, 3))
sketch8.addConstraint(Sketcher.Constraint("Vertical", 39, 3, 48, 3))
sketch8.addConstraint(Sketcher.Constraint("Vertical", 40, 3, 49, 3))
sketch8.addConstraint(Sketcher.Constraint("Vertical", 41, 3, 50, 3))
sketch8.addConstraint(Sketcher.Constraint("Vertical", 42, 3, 51, 3))
sketch8.addConstraint(Sketcher.Constraint("Vertical", 43, 3, 52, 3))
sketch8.addConstraint(Sketcher.Constraint("Vertical", 44, 3, 53, 3))
sketch8.addConstraint(Sketcher.Constraint("Vertical", 45, 3, 54, 3))
sketch8.addConstraint(Sketcher.Constraint("Vertical", 46, 3, 55, 3))
sketch8.addConstraint(Sketcher.Constraint("Vertical", 47, 3, 56, 3))
sketch8.addConstraint(Sketcher.Constraint("Vertical", 48, 3, 57, 3))
sketch8.addConstraint(Sketcher.Constraint("Vertical", 49, 3, 58, 3))
sketch8.addConstraint(Sketcher.Constraint("Vertical", 50, 3, 59, 3))
sketch8.addConstraint(Sketcher.Constraint("Vertical", 51, 3, 60, 3))
sketch8.addConstraint(Sketcher.Constraint("Vertical", 52, 3, 61, 3))
sketch8.addConstraint(Sketcher.Constraint("Vertical", 53, 3, 62, 3))
sketch8.addConstraint(Sketcher.Constraint("Vertical", 54, 3, 63, 3))
sketch8.addConstraint(Sketcher.Constraint("Vertical", 0, 3, 64, 3))
sketch8.addConstraint(Sketcher.Constraint("Vertical", 64, 3, 65, 3))
sketch8.addConstraint(Sketcher.Constraint("Vertical", 65, 3, 66, 3))
sketch8.addConstraint(Sketcher.Constraint("Vertical", 66, 3, 67, 3))
sketch8.addConstraint(Sketcher.Constraint("Vertical", 67, 3, 68, 3))
sketch8.addConstraint(Sketcher.Constraint("Vertical", 68, 3, 69, 3))
sketch8.addConstraint(Sketcher.Constraint("Diameter", 0, 2.0))
sketch8.addConstraint(Sketcher.Constraint("DistanceX", 0, 3, -1, 1, 53.841082))
sketch8.addConstraint(Sketcher.Constraint("DistanceY", -1, 1, 0, 3, 54.831187))
sketch8.addConstraint(Sketcher.Constraint("DistanceX", 1, 3, -1, 1, 43.841082))
sketch8.addConstraint(Sketcher.Constraint("DistanceX", 2, 3, -1, 1, 33.841082))
sketch8.addConstraint(Sketcher.Constraint("DistanceX", 3, 3, -1, 1, 23.841082))
sketch8.addConstraint(Sketcher.Constraint("DistanceX", 4, 3, -1, 1, 13.841082))
sketch8.addConstraint(Sketcher.Constraint("DistanceX", 5, 3, -1, 1, 3.841082))
sketch8.addConstraint(Sketcher.Constraint("DistanceX", -1, 1, 6, 3, 6.158918))
sketch8.addConstraint(Sketcher.Constraint("DistanceX", -1, 1, 7, 3, 16.158918))
sketch8.addConstraint(Sketcher.Constraint("DistanceX", -1, 1, 8, 3, 26.158918))
sketch8.addConstraint(Sketcher.Constraint("DistanceX", -1, 1, 9, 3, 36.158918))
sketch8.addConstraint(Sketcher.Constraint("DistanceY", -1, 1, 10, 3, 44.831187))
sketch8.addConstraint(Sketcher.Constraint("DistanceY", -1, 1, 19, 3, 34.831187))
sketch8.addConstraint(Sketcher.Constraint("DistanceY", -1, 1, 28, 3, 24.831187))
sketch8.addConstraint(Sketcher.Constraint("DistanceY", -1, 1, 37, 3, 14.831187))
sketch8.addConstraint(Sketcher.Constraint("DistanceY", -1, 1, 46, 3, 4.831187))
sketch8.addConstraint(Sketcher.Constraint("DistanceY", 55, 3, -1, 1, 5.168813))
pocket5 = body.newObject("PartDesign::Pocket", "Pocket004")
pocket5.Profile = sketch8
pocket5.Length = 5

sketch9 = body.newObject("Sketcher::SketchObject", "Sketch008")
sketch9.AttachmentSupport = (doc.getObject("XZ_Plane"), [""])
sketch9.MapMode = "FlatFace"
sketch9.AttachmentOffset = App.Placement(Vector(0, 0, -4), App.Rotation())
add_polygon(sketch9, [(30, -5.2), (39.2, -5.2), (39.2, 6), (53.4, 6), (53.4, -9.8), (30, -9.8)])
add_polygon(sketch9, [(39.2, 6.2), (39.2, 56), (56.5, 56), (56.5, 6.2)])
sketch9.addConstraint(Sketcher.Constraint("Horizontal", 0))
sketch9.addConstraint(Sketcher.Constraint("Vertical", 1))
sketch9.addConstraint(Sketcher.Constraint("Horizontal", 2))
sketch9.addConstraint(Sketcher.Constraint("Vertical", 3))
sketch9.addConstraint(Sketcher.Constraint("Horizontal", 4))
sketch9.addConstraint(Sketcher.Constraint("Vertical", 5))
sketch9.addConstraint(Sketcher.Constraint("Vertical", 6))
sketch9.addConstraint(Sketcher.Constraint("Horizontal", 7))
sketch9.addConstraint(Sketcher.Constraint("Vertical", 8))
sketch9.addConstraint(Sketcher.Constraint("Horizontal", 9))
sketch9.addConstraint(Sketcher.Constraint("Vertical", 1, 2, 6, 2))
sketch9.addConstraint(Sketcher.Constraint("DistanceY", -1, 1, 6, 2, 56.0))
sketch9.addConstraint(Sketcher.Constraint("DistanceX", 2, 1, 2, 2, 14.22629))
sketch9.addConstraint(Sketcher.Constraint("DistanceX", 0, 1, 0, 2, 9.156655))
sketch9.addConstraint(Sketcher.Constraint("DistanceX", 7, 1, 7, 2, 17.353066))
sketch9.addConstraint(Sketcher.Constraint("DistanceY", 1, 1, 1, 2, 11.196758))
sketch9.addConstraint(Sketcher.Constraint("DistanceY", 3, 2, 3, 1, 15.823355))
sketch9.addConstraint(Sketcher.Constraint("DistanceY", 6, 1, 6, 2, 49.827316))
sketch9.addConstraint(Sketcher.Constraint("DistanceY", 3, 2, -1, 1, 9.79541))
sketch9.addConstraint(Sketcher.Constraint("DistanceX", -1, 1, 0, 2, 39.158918))
pad4 = body.newObject("PartDesign::Pad", "Pad003")
pad4.Profile = sketch9
pad4.Length = 62
pad4.Reversed = True

sketch10 = body.newObject("Sketcher::SketchObject", "Sketch009")
sketch10.AttachmentSupport = (doc.getObject("XZ_Plane"), [""])
sketch10.MapMode = "FlatFace"
sketch10.AttachmentOffset = App.Placement(Vector(0, 0, -4), App.Rotation())
add_polygon(sketch10, [(12.6, -56), (12.6, -21), (17.6, -21), (17.6, -56)])
sketch10.addConstraint(Sketcher.Constraint("Vertical", 0))
sketch10.addConstraint(Sketcher.Constraint("Horizontal", 1))
sketch10.addConstraint(Sketcher.Constraint("Vertical", 2))
sketch10.addConstraint(Sketcher.Constraint("Horizontal", 3))
sketch10.addConstraint(Sketcher.Constraint("DistanceX", 1, 1, 1, 2, 5.0))
sketch10.addConstraint(Sketcher.Constraint("DistanceY", 2, 2, -1, 1, 56.0))
sketch10.addConstraint(Sketcher.Constraint("DistanceY", 0, 1, 0, 2, 35.012875))
sketch10.addConstraint(Sketcher.Constraint("DistanceX", -1, 1, 0, 2, 12.592275))
pad5 = body.newObject("PartDesign::Pad", "Pad004")
pad5.Profile = sketch10
pad5.Length = 62
pad5.Reversed = True

sketch11 = body.newObject("Sketcher::SketchObject", "Sketch010")
sketch11.AttachmentSupport = (doc.getObject("XZ_Plane"), [""])
sketch11.MapMode = "FlatFace"
sketch11.AttachmentOffset = App.Placement(Vector(0, 0, -66), App.Rotation())
sketch11.addGeometry(Part.Circle(Vector(54.2, 43.7, 0), Vector(0, 0, 1), 1), False)
sketch11.addConstraint(Sketcher.Constraint("Diameter", 0, 2.0))
sketch11.addConstraint(Sketcher.Constraint("DistanceX", -1, 1, 0, 3, 54.2))
sketch11.addConstraint(Sketcher.Constraint("DistanceY", -1, 1, 0, 3, 43.7))
pocket6 = body.newObject("PartDesign::Pocket", "Pocket005")
pocket6.Profile = sketch11
pocket6.Length = 10
pocket6.Reversed = True

sketch12 = body.newObject("Sketcher::SketchObject", "Sketch011")
sketch12.AttachmentSupport = (doc.getObject("XZ_Plane"), [""])
sketch12.MapMode = "FlatFace"
sketch12.AttachmentOffset = App.Placement(Vector(0, 0, -66), App.Rotation())
add_polygon(sketch12, [(39, 48), (39, 56), (56, 56), (56, 48)])
sketch12.addConstraint(Sketcher.Constraint("Vertical", 0))
sketch12.addConstraint(Sketcher.Constraint("Horizontal", 1))
sketch12.addConstraint(Sketcher.Constraint("Vertical", 2))
sketch12.addConstraint(Sketcher.Constraint("Horizontal", 3))
sketch12.addConstraint(Sketcher.Constraint("DistanceY", -1, 1, 0, 2, 56.0))
sketch12.addConstraint(Sketcher.Constraint("DistanceX", -1, 1, 1, 2, 56.0))
sketch12.addConstraint(Sketcher.Constraint("DistanceX", 1, 1, 1, 2, 16.841082))
sketch12.addConstraint(Sketcher.Constraint("DistanceY", 0, 1, 0, 2, 8.344585))
pad6 = body.newObject("PartDesign::Pad", "Pad005")
pad6.Profile = sketch12
pad6.Length = 32
pad6.Reversed = True

sketch13 = body.newObject("Sketcher::SketchObject", "Sketch012")
sketch13.AttachmentSupport = (doc.getObject("XZ_Plane"), [""])
sketch13.MapMode = "FlatFace"
sketch13.AttachmentOffset = App.Placement(Vector(0, 0, -4), App.Rotation())
add_polygon(sketch13, [(-56, -56), (-56, -38), (-47, -38), (-47, -56)])
sketch13.addConstraint(Sketcher.Constraint("Vertical", 0))
sketch13.addConstraint(Sketcher.Constraint("Horizontal", 1))
sketch13.addConstraint(Sketcher.Constraint("Vertical", 2))
sketch13.addConstraint(Sketcher.Constraint("Horizontal", 3))
sketch13.addConstraint(Sketcher.Constraint("DistanceX", 0, 2, -1, 1, 56.0))
sketch13.addConstraint(Sketcher.Constraint("DistanceY", 2, 2, -1, 1, 56.0))
sketch13.addConstraint(Sketcher.Constraint("DistanceX", 1, 1, 1, 2, 8.507454))
sketch13.addConstraint(Sketcher.Constraint("DistanceY", 0, 1, 0, 2, 18.470083))
pad7 = body.newObject("PartDesign::Pad", "Pad006")
pad7.Profile = sketch13
pad7.Length = 94
pad7.Reversed = True
doc.recompute()

fillet2 = body.newObject("PartDesign::Fillet", "Fillet001")
fillet2.Base = (pad7, edges_at(pad7, [(-56, 51, 56), (56, 51, -56)]))
fillet2.Radius = 2.5

sketch14 = body.newObject("Sketcher::SketchObject", "Sketch013")
sketch14.AttachmentSupport = (doc.getObject("XZ_Plane"), [""])
sketch14.MapMode = "FlatFace"
sketch14.AttachmentOffset = App.Placement(Vector(0, 0, -98), App.Rotation())
sketch14.addGeometry(Part.Circle(Vector(53, 53, 0), Vector(0, 0, 1), 1), False)
sketch14.addGeometry(Part.Circle(Vector(-53, -53, 0), Vector(0, 0, 1), 1), False)
sketch14.addConstraint(Sketcher.Constraint("Equal", 0, 1))
sketch14.addConstraint(Sketcher.Constraint("Symmetric", 0, 3, 1, 3, -1, 1))
sketch14.addConstraint(Sketcher.Constraint("Diameter", 0, 2.0))
sketch14.addConstraint(Sketcher.Constraint("DistanceX", -1, 1, 0, 3, 53.0))
sketch14.addConstraint(Sketcher.Constraint("DistanceY", -1, 1, 0, 3, 53.0))
pocket7 = body.newObject("PartDesign::Pocket", "Pocket006")
pocket7.Profile = sketch14
pocket7.Length = 10
pocket7.Reversed = True

sketch15 = body.newObject("Sketcher::SketchObject", "Sketch014")
sketch15.AttachmentSupport = (doc.getObject("YZ_Plane"), [""])
sketch15.MapMode = "FlatFace"
sketch15.AttachmentOffset = App.Placement(Vector(0, 0, 58), App.Rotation())
sketch15.addGeometry(Part.Circle(Vector(44.6, -33, 0), Vector(0, 0, 1), 3.8), False)
sketch15.addConstraint(Sketcher.Constraint("Diameter", 0, 7.5))
sketch15.addConstraint(Sketcher.Constraint("DistanceY", 0, 3, -1, 1, 33.008771))
sketch15.addConstraint(Sketcher.Constraint("DistanceX", -1, 1, 0, 3, 44.626515))
pocket8 = body.newObject("PartDesign::Pocket", "Pocket007")
pocket8.Profile = sketch15
pocket8.Length = 5

sketch16 = body.newObject("Sketcher::SketchObject", "Sketch015")
sketch16.AttachmentSupport = (doc.getObject("XZ_Plane"), [""])
sketch16.MapMode = "FlatFace"
sketch16.AttachmentOffset = App.Placement(Vector(0, 0, -4), App.Rotation())
add_polygon(sketch16, [(39, -5), (39, 56), (46, 56), (46, -5)])
sketch16.addConstraint(Sketcher.Constraint("Vertical", 0))
sketch16.addConstraint(Sketcher.Constraint("Horizontal", 1))
sketch16.addConstraint(Sketcher.Constraint("Vertical", 2))
sketch16.addConstraint(Sketcher.Constraint("Horizontal", 3))
sketch16.addConstraint(Sketcher.Constraint("DistanceX", 1, 1, 1, 2, 7.0))
sketch16.addConstraint(Sketcher.Constraint("DistanceY", 0, 1, 0, 2, 61.127319))
sketch16.addConstraint(Sketcher.Constraint("DistanceX", -1, 1, 0, 2, 39.158918))
sketch16.addConstraint(Sketcher.Constraint("DistanceY", -1, 1, 0, 2, 55.958506))
pocket9 = body.newObject("PartDesign::Pocket", "Pocket008")
pocket9.Profile = sketch16
pocket9.Length = 94

doc.recompute()
